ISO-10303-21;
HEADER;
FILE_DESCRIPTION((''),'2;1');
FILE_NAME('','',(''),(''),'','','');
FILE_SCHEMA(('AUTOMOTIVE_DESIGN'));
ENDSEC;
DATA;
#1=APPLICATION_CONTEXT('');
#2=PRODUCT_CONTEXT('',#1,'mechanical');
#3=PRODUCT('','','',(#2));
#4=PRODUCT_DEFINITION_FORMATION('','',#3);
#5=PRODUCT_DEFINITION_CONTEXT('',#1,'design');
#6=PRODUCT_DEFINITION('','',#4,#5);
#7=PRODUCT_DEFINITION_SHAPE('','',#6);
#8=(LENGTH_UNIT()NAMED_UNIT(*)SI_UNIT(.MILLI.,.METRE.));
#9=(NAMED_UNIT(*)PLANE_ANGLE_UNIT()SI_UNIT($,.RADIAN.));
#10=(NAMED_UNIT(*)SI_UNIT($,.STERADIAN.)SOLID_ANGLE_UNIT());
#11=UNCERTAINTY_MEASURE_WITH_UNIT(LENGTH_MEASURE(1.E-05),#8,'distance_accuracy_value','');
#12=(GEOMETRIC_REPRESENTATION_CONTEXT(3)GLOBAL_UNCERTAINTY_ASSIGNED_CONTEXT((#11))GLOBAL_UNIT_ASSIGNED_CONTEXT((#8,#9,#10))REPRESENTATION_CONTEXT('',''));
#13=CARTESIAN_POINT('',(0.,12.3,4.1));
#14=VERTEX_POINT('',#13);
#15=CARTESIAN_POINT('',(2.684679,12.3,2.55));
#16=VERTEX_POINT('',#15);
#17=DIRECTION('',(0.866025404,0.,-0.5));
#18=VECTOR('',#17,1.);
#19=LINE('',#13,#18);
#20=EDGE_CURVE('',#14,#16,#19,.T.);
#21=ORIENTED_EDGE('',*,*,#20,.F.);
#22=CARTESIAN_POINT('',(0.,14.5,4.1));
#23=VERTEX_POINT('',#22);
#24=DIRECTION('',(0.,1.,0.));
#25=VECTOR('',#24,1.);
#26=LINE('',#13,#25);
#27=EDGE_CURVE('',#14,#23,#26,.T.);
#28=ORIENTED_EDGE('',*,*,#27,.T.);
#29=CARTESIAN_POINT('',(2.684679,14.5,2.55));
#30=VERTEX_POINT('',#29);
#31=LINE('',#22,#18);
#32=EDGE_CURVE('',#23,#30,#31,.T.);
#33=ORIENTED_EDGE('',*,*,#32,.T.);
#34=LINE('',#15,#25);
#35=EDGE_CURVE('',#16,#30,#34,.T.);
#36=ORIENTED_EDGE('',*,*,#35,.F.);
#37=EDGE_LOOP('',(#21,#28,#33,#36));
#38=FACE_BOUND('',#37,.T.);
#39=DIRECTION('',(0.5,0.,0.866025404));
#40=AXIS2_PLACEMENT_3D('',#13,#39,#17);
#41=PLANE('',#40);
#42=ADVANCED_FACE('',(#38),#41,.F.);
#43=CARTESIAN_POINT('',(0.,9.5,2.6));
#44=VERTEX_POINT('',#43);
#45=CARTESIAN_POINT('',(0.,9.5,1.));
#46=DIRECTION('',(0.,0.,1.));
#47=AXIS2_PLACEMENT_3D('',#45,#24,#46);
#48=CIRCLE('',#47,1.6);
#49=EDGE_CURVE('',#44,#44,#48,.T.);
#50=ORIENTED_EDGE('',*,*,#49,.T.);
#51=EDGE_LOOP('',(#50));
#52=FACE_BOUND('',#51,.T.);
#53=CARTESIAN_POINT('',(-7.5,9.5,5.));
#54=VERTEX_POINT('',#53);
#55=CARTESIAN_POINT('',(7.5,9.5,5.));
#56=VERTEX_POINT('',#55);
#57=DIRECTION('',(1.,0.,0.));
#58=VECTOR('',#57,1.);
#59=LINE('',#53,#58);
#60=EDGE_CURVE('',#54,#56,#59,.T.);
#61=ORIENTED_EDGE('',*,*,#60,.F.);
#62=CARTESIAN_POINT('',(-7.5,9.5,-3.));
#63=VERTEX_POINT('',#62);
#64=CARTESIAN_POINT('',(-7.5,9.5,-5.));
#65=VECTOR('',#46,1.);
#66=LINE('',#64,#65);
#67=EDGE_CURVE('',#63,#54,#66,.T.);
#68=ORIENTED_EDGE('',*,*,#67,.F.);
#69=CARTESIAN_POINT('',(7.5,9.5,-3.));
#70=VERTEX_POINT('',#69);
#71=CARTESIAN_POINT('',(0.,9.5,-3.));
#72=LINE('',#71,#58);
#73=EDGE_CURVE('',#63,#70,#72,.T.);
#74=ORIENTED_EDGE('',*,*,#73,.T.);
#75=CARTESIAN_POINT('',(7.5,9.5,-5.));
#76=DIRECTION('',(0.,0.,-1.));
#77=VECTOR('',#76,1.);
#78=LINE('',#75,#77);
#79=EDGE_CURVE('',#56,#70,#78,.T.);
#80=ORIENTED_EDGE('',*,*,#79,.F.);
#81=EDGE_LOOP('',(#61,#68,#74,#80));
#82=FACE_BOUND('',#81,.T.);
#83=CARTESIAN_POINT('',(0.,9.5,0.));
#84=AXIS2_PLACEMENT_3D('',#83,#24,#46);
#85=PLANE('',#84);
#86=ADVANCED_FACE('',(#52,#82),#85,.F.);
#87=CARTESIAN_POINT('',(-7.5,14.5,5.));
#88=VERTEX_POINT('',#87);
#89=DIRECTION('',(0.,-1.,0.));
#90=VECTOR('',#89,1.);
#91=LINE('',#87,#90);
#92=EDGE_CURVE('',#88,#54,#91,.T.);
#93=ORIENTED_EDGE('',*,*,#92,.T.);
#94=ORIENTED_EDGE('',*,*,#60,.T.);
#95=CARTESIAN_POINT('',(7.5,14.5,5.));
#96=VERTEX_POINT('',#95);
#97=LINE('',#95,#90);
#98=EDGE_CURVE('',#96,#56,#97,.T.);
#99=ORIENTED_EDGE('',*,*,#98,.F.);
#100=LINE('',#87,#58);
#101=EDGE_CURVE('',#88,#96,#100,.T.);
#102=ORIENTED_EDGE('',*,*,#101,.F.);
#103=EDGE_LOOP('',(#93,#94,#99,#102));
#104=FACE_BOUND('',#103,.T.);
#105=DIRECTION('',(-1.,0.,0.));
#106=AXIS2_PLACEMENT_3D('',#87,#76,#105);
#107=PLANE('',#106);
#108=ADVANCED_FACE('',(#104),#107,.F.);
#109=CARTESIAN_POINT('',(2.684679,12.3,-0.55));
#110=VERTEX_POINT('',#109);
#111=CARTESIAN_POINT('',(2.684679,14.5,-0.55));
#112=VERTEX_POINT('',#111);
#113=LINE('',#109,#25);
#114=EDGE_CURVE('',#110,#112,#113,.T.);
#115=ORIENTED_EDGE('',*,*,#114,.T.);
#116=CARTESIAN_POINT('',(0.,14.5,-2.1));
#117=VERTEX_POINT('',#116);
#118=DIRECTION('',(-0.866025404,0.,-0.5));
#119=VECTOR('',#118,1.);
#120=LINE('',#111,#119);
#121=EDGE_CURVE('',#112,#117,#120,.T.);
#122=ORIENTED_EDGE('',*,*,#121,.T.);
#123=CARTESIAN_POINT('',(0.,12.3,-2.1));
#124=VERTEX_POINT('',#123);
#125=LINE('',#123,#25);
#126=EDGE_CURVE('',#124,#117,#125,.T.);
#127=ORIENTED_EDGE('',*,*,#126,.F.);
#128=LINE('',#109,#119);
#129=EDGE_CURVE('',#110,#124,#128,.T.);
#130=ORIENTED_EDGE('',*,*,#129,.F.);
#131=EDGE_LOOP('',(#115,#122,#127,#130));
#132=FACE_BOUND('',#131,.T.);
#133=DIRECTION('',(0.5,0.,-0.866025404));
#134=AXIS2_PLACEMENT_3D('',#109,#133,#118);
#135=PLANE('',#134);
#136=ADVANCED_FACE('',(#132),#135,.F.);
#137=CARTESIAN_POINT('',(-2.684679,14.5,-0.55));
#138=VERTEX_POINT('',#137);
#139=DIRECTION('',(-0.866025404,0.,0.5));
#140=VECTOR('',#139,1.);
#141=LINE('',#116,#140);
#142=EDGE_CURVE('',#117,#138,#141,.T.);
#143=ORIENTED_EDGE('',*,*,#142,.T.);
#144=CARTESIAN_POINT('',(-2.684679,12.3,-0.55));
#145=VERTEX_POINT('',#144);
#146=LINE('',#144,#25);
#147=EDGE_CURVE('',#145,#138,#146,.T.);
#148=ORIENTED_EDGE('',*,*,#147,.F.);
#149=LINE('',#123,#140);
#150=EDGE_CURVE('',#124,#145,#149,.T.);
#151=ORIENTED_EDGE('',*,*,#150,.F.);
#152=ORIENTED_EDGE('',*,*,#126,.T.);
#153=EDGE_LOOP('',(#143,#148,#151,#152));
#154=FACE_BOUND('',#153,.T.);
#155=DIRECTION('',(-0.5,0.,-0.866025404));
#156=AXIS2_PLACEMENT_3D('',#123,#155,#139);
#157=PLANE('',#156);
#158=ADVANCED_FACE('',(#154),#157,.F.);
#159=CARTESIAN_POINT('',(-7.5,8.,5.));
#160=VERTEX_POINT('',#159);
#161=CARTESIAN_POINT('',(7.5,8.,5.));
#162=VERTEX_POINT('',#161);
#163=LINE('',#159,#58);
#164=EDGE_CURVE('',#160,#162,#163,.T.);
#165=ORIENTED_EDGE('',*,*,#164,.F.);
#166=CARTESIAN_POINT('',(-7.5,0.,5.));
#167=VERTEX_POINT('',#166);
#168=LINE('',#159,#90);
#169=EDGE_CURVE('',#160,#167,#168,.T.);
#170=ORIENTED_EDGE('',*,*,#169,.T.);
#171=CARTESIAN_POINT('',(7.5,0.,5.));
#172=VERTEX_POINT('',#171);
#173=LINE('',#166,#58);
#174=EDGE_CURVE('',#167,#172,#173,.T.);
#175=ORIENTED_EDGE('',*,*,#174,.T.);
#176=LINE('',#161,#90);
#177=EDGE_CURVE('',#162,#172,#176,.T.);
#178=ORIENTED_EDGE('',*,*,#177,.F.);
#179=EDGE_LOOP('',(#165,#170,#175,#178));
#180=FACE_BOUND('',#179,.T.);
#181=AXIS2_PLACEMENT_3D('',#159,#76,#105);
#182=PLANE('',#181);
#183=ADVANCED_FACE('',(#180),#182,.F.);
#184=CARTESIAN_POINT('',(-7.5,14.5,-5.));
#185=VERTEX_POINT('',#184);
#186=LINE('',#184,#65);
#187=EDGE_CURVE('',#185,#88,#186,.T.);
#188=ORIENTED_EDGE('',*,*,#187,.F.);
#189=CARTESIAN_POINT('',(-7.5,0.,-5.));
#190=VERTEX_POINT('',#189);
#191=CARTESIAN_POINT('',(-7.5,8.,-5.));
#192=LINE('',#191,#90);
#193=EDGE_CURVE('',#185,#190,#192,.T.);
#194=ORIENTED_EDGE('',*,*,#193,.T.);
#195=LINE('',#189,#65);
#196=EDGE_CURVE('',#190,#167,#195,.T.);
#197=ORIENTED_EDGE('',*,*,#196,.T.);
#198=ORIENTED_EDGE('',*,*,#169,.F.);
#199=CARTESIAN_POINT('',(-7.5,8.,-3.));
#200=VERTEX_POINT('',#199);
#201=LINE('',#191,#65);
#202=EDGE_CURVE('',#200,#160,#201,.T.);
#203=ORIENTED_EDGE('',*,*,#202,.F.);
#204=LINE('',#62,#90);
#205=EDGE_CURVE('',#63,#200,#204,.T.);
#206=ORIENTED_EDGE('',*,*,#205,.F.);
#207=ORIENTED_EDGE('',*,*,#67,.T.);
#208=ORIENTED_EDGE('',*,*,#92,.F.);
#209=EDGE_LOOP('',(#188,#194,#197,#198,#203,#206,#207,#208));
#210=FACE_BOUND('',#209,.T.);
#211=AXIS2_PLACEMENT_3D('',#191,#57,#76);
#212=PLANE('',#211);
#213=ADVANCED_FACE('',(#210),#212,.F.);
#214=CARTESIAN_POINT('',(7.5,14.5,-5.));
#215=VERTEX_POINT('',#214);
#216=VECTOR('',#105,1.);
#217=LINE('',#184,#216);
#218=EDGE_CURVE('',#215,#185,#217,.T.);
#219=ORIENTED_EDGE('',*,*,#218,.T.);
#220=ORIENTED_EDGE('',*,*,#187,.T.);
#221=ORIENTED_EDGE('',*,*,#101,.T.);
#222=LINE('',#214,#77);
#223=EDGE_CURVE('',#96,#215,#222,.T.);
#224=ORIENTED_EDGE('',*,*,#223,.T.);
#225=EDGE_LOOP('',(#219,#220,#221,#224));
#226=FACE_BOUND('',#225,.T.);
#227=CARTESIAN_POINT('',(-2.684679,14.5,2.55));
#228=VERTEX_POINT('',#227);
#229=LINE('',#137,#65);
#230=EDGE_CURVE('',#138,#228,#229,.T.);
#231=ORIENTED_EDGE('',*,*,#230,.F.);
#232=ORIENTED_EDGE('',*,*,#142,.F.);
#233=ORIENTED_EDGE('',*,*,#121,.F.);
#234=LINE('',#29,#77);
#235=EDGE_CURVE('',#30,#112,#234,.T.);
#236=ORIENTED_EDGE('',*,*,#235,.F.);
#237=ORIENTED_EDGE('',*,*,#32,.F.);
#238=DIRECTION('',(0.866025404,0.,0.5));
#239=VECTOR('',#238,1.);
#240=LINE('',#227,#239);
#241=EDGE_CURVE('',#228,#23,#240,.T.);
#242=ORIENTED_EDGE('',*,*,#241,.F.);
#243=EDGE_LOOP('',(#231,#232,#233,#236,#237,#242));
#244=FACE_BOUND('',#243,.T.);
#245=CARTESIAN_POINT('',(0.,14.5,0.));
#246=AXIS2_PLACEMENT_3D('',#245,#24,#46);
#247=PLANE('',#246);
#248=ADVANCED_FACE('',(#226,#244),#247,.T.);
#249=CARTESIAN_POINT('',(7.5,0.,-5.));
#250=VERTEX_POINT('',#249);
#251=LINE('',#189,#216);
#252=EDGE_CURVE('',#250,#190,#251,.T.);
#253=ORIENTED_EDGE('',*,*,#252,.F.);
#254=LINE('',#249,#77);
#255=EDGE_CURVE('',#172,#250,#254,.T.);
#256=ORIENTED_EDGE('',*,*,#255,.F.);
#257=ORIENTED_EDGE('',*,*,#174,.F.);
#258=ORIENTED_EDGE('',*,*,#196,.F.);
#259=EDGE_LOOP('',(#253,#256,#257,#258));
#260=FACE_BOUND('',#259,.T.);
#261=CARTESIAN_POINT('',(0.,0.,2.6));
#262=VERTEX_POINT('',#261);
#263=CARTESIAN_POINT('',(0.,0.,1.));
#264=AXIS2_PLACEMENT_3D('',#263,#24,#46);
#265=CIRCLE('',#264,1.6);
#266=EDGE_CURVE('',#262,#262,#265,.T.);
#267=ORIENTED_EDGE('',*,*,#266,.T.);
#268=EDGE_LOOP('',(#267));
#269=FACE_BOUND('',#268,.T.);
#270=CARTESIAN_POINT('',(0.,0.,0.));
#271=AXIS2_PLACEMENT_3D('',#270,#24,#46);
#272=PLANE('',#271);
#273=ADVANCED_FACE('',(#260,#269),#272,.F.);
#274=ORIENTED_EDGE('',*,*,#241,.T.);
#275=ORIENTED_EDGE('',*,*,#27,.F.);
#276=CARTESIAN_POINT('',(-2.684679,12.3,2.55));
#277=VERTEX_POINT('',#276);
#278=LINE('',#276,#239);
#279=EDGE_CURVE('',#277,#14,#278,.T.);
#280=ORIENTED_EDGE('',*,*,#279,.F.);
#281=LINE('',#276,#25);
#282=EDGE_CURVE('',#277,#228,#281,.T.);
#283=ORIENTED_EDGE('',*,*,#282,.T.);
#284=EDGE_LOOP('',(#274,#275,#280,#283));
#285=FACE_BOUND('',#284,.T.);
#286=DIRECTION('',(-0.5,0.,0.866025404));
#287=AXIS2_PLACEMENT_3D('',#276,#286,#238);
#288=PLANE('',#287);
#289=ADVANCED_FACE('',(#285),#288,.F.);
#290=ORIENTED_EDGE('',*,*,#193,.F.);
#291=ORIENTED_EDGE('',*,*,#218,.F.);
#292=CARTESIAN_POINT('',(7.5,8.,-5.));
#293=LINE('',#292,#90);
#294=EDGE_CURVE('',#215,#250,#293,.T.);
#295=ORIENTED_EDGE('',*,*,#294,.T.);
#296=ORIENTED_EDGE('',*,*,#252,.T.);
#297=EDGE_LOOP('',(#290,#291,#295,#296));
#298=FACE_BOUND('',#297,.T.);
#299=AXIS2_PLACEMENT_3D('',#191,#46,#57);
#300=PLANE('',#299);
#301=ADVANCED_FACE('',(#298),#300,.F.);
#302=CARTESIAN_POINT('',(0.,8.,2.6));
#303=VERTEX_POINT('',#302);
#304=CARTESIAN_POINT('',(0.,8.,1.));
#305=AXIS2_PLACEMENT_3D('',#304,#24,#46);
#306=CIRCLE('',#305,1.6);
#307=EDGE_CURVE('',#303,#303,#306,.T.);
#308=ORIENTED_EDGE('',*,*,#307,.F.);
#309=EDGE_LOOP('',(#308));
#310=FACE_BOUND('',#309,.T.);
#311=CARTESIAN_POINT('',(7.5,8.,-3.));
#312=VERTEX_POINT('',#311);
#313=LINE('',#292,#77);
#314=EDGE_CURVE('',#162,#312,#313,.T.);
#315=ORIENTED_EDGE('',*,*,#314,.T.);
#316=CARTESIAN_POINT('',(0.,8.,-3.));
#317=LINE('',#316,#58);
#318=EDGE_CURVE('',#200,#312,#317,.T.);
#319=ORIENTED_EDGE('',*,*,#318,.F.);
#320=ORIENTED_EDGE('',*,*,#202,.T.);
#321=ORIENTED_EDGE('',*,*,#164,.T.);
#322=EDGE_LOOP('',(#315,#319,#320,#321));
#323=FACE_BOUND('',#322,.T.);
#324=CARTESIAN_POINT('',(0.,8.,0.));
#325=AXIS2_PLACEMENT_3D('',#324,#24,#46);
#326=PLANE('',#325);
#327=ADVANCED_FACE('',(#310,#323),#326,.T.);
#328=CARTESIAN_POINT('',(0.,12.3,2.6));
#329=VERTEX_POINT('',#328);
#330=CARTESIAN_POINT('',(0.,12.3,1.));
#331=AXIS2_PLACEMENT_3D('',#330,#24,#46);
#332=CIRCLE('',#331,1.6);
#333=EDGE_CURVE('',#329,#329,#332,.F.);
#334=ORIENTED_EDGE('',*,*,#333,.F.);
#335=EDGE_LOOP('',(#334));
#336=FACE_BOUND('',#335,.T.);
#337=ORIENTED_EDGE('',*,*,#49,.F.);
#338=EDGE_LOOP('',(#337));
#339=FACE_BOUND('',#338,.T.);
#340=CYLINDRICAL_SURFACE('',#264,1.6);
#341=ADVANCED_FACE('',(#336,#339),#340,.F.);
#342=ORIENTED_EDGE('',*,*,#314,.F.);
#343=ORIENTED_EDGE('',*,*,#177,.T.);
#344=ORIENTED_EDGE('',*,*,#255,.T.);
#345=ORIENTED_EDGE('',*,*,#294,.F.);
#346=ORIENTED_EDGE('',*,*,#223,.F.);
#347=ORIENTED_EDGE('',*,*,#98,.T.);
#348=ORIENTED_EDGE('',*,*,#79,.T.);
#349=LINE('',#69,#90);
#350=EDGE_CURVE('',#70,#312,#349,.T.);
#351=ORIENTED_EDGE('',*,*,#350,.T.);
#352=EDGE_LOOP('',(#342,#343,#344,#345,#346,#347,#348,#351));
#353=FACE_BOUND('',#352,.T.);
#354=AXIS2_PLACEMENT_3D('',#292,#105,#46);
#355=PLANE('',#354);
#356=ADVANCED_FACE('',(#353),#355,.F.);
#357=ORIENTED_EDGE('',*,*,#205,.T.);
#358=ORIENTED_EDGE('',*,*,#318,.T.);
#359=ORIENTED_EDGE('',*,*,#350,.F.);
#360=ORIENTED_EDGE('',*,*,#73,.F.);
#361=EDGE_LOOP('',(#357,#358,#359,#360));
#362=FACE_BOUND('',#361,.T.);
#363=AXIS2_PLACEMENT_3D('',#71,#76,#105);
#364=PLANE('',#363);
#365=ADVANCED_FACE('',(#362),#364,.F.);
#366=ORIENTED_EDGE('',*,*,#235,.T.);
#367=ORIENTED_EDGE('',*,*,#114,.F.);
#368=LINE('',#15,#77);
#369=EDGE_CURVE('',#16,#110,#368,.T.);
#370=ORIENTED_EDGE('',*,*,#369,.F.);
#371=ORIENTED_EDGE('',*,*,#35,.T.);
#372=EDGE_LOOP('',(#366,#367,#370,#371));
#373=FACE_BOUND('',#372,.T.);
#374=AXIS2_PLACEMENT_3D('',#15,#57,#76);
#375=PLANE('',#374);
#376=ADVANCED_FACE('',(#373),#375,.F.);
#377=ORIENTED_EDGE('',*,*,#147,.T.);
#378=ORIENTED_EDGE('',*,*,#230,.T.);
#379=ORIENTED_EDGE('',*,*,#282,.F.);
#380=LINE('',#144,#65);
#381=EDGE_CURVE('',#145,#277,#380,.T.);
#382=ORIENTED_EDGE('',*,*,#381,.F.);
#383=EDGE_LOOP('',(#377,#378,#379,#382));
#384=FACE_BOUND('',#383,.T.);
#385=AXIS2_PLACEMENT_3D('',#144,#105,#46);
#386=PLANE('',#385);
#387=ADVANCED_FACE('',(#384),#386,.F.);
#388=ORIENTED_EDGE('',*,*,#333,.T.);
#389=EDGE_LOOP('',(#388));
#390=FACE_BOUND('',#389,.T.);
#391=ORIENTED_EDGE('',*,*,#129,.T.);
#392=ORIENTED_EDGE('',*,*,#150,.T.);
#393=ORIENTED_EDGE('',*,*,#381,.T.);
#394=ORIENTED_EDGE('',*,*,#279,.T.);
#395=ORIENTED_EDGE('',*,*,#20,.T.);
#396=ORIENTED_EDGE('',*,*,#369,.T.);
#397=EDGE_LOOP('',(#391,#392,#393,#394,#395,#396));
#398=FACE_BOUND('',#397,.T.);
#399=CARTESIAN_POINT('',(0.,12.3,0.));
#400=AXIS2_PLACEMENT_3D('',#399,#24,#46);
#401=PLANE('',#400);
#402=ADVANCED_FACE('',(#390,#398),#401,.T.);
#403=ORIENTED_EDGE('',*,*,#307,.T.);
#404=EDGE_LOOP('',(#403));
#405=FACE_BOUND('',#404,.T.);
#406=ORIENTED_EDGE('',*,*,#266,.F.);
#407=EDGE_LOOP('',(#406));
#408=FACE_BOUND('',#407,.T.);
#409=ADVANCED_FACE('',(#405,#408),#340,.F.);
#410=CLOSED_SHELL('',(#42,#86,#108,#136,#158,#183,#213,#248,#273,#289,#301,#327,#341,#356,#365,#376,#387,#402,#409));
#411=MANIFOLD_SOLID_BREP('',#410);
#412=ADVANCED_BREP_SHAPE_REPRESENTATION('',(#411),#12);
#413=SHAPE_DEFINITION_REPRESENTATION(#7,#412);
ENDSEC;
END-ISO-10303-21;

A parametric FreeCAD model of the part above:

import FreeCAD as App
import Part
import Sketcher

V = App.Vector
Q = App.Units.Quantity


def add_polygon(sketch, points):
    """Adds a closed chain of lines whose ends are joined by coincident constraints."""
    first, n = sketch.GeometryCount, len(points)
    for a, b in zip(points, points[1:] + points[:1]):
        sketch.addGeometry(Part.LineSegment(App.Vector(*a, 0), App.Vector(*b, 0)), False)
    for i in range(n):
        sketch.addConstraint(Sketcher.Constraint("Coincident", first + i, 2, first + (i + 1) % n, 1))

doc = App.newDocument("Part")
body = doc.addObject("PartDesign::Body", "Body")

# Sketch on XZ plane
sketch1 = body.newObject("Sketcher::SketchObject", "Sketch")
sketch1.AttachmentSupport = (doc.getObject("XZ_Plane"), [""])
sketch1.MapMode = "FlatFace"
add_polygon(sketch1, [(-7.5, -5), (-7.5, 5), (7.5, 5), (7.5, -5)])  # lines 0-3
sketch1.addConstraint(Sketcher.Constraint("Vertical", 0))
sketch1.addConstraint(Sketcher.Constraint("Horizontal", 1))
sketch1.addConstraint(Sketcher.Constraint("Vertical", 2))
sketch1.addConstraint(Sketcher.Constraint("Horizontal", 3))
sketch1.addConstraint(Sketcher.Constraint("Symmetric", 0, 2, 2, 2, -1, 1))
sketch1.addConstraint(Sketcher.Constraint("DistanceX", 1, 1, 1, 2, Q("15 mm")))
sketch1.addConstraint(Sketcher.Constraint("DistanceY", 0, 1, 0, 2, Q("10 mm")))
pad1 = body.newObject("PartDesign::Pad", "Pad")
pad1.Profile = sketch1
pad1.Length = 8
pad1.Reversed = True

# Sketch on XZ plane
sketch2 = body.newObject("Sketcher::SketchObject", "Sketch001")
sketch2.AttachmentSupport = (doc.getObject("XZ_Plane"), [""])
sketch2.MapMode = "FlatFace"
sketch2.AttachmentOffset = App.Placement(V(0, 0, -8), App.Rotation())
add_polygon(sketch2, [(-7.5, -3), (7.5, -3), (7.5, -5), (-7.5, -5)])  # lines 0-3
sketch2.addConstraint(Sketcher.Constraint("Horizontal", 0))
sketch2.addConstraint(Sketcher.Constraint("Vertical", 1))
sketch2.addConstraint(Sketcher.Constraint("Horizontal", 2))
sketch2.addConstraint(Sketcher.Constraint("Vertical", 3))
sketch2.addConstraint(Sketcher.Constraint("DistanceX", 0, 1, 0, 2, Q("15 mm")))
sketch2.addConstraint(Sketcher.Constraint("DistanceY", 1, 2, 1, 1, Q("2 mm")))
sketch2.addConstraint(Sketcher.Constraint("DistanceY", 0, 2, -1, 1, Q("3 mm")))
sketch2.addConstraint(Sketcher.Constraint("DistanceX", -1, 1, 0, 2, Q("7.5 mm")))
pad2 = body.newObject("PartDesign::Pad", "Pad001")
pad2.Profile = sketch2
pad2.Length = 1.5
pad2.Reversed = True

# Sketch on XZ plane
sketch3 = body.newObject("Sketcher::SketchObject", "Sketch002")
sketch3.AttachmentSupport = (doc.getObject("XZ_Plane"), [""])
sketch3.MapMode = "FlatFace"
sketch3.AttachmentOffset = App.Placement(V(0, 0, -9.5), App.Rotation())
add_polygon(sketch3, [(-7.5, -5), (-7.5, 5), (7.5, 5), (7.5, -5)])  # lines 0-3
sketch3.addConstraint(Sketcher.Constraint("Vertical", 0))
sketch3.addConstraint(Sketcher.Constraint("Horizontal", 1))
sketch3.addConstraint(Sketcher.Constraint("Vertical", 2))
sketch3.addConstraint(Sketcher.Constraint("Horizontal", 3))
sketch3.addConstraint(Sketcher.Constraint("Symmetric", 0, 2, 2, 2, -1, 1))
sketch3.addConstraint(Sketcher.Constraint("DistanceX", 1, 1, 1, 2, Q("15 mm")))
sketch3.addConstraint(Sketcher.Constraint("DistanceY", 0, 1, 0, 2, Q("10 mm")))
pad3 = body.newObject("PartDesign::Pad", "Pad002")
pad3.Profile = sketch3
pad3.Length = 5
pad3.Reversed = True

# Sketch on XZ plane
sketch4 = body.newObject("Sketcher::SketchObject", "Sketch003")
sketch4.AttachmentSupport = (doc.getObject("XZ_Plane"), [""])
sketch4.MapMode = "FlatFace"
sketch4.AttachmentOffset = App.Placement(V(0, 0, -14.5), App.Rotation())
sketch4.addGeometry(Part.Circle(V(0, 1, 0), V(0, 0, 1), 1.6), False)
sketch4.addConstraint(Sketcher.Constraint("PointOnObject", 0, 3, -2))
sketch4.addConstraint(Sketcher.Constraint("Diameter", 0, Q("3.2 mm")))
sketch4.addConstraint(Sketcher.Constraint("DistanceY", -1, 1, 0, 3, Q("1 mm")))
pocket1 = body.newObject("PartDesign::Pocket", "Pocket")
pocket1.Profile = sketch4
pocket1.Type = "ThroughAll"
pocket1.Reversed = True

# Sketch on XZ plane
sketch5 = body.newObject("Sketcher::SketchObject", "Sketch004")
sketch5.AttachmentSupport = (doc.getObject("XZ_Plane"), [""])
sketch5.MapMode = "FlatFace"
sketch5.AttachmentOffset = App.Placement(V(0, 0, -14.5), App.Rotation())
add_polygon(sketch5, [(0, 4.1), (2.684679, 2.55), (2.684679, -0.55), (0, -2.1), (-2.684679, -0.55), (-2.684679, 2.55)])  # lines 0-5
sketch5.addConstraint(Sketcher.Constraint("Vertical", 1))
sketch5.addConstraint(Sketcher.Constraint("Vertical", 4))
sketch5.addConstraint(Sketcher.Constraint("Symmetric", 1, 2, 3, 2, -2))
sketch5.addConstraint(Sketcher.Constraint("PointOnObject", 2, 2, -2))
sketch5.addConstraint(Sketcher.Constraint("PointOnObject", 5, 2, -2))
sketch5.addConstraint(Sketcher.Constraint("Parallel", 0, 3))
sketch5.addConstraint(Sketcher.Constraint("Parallel", 2, 5))
sketch5.addConstraint(Sketcher.Constraint("Angle", 0, Q("-30 deg")))
sketch5.addConstraint(Sketcher.Constraint("DistanceY", 1, 2, 1, 1, Q("3.1 mm")))
sketch5.addConstraint(Sketcher.Constraint("Distance", 0, Q("3.1 mm")))
sketch5.addConstraint(Sketcher.Constraint("DistanceY", 2, 2, -1, 1, Q("2.1 mm")))
pocket2 = body.newObject("PartDesign::Pocket", "Pocket001")
pocket2.Profile = sketch5
pocket2.Length = 2.2
pocket2.Reversed = True

doc.recompute()
